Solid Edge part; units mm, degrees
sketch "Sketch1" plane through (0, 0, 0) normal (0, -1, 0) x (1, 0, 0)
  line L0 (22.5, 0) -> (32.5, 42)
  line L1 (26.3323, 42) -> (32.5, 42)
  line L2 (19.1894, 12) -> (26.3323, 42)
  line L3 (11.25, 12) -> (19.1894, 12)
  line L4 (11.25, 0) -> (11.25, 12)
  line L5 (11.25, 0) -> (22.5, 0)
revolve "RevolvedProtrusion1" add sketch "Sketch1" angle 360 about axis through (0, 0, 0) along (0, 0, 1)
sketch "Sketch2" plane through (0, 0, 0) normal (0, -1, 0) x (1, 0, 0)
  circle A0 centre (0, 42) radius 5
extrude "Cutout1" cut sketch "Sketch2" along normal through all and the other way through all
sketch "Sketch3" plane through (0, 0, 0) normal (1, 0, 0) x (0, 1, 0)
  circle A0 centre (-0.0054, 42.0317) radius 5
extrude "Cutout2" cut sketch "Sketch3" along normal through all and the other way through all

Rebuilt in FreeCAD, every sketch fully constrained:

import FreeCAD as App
import Part
import Sketcher
from FreeCAD import Vector


def add_polygon(sketch, points):
    """Adds a closed chain of lines whose ends are joined by coincident constraints."""
    first, n = sketch.GeometryCount, len(points)
    for a, b in zip(points, points[1:] + points[:1]):
        sketch.addGeometry(Part.LineSegment(App.Vector(*a, 0), App.Vector(*b, 0)), False)
    for i in range(n):
        sketch.addConstraint(Sketcher.Constraint("Coincident", first + i, 2, first + (i + 1) % n, 1))

doc = App.newDocument("Part")
body = doc.addObject("PartDesign::Body", "Body")

sketch1 = doc.addObject("Sketcher::SketchObject", "Sketch")
body.addObject(sketch1)
sketch1.AttachmentSupport = (doc.XZ_Plane, [""])
sketch1.MapMode = "FlatFace"
add_polygon(sketch1, [(11, 0), (22, 0), (32, 42), (26, 42), (19, 12), (11, 12)])
sketch1.addConstraint([
    Sketcher.Constraint("Horizontal", 0),
    Sketcher.Constraint("Horizontal", 2),
    Sketcher.Constraint("Horizontal", 4),
    Sketcher.Constraint("Vertical", 5),
    Sketcher.Constraint("PointOnObject", 0, 2, -1),
    Sketcher.Constraint("Parallel", 1, 3),
    Sketcher.Constraint("DistanceY", 5, 2, 5, 1, 12.0),
    Sketcher.Constraint("DistanceY", -1, 1, 1, 2, 42.0),
    Sketcher.Constraint("DistanceX", 0, 2, 1, 2, 10.0),
    Sketcher.Constraint("DistanceX", 0, 1, 0, 2, 11.25),
    Sketcher.Constraint("DistanceX", -1, 1, 0, 2, 22.5),
    Sketcher.Constraint("DistanceX", 2, 2, 2, 1, 6.1677),
])
revolution = doc.addObject("PartDesign::Revolution", "Revolution")
body.addObject(revolution)
revolution.Profile = sketch1
revolution.ReferenceAxis = (sketch1, ["V_Axis"])
revolution.Angle = 360

sketch2 = doc.addObject("Sketcher::SketchObject", "Sketch001")
body.addObject(sketch2)
sketch2.AttachmentSupport = (doc.XZ_Plane, [""])
sketch2.MapMode = "FlatFace"
sketch2.addGeometry(Part.Circle(Vector(0, 42, 0), Vector(0, 0, 1), 5), False)
sketch2.addConstraint([
    Sketcher.Constraint("PointOnObject", 0, 3, -2),
    Sketcher.Constraint("Diameter", 0, 10.0),
    Sketcher.Constraint("DistanceY", -1, 1, 0, 3, 42.0),
])
pocket1 = doc.addObject("PartDesign::Pocket", "Pocket")
body.addObject(pocket1)
pocket1.Profile = sketch2
pocket1.Type = "ThroughAll"
pocket1.Midplane = True

sketch3 = doc.addObject("Sketcher::SketchObject", "Sketch002")
body.addObject(sketch3)
sketch3.AttachmentSupport = (doc.YZ_Plane, [""])
sketch3.MapMode = "FlatFace"
sketch3.addGeometry(Part.Circle(Vector(0, 42, 0), Vector(0, 0, 1), 5), False)
sketch3.addConstraint([
    Sketcher.Constraint("Diameter", 0, 10.0),
    Sketcher.Constraint("DistanceX", 0, 3, -1, 1, 0.0054),
    Sketcher.Constraint("DistanceY", -1, 1, 0, 3, 42.0317),
])
pocket2 = doc.addObject("PartDesign::Pocket", "Pocket001")
body.addObject(pocket2)
pocket2.Profile = sketch3
pocket2.Type = "ThroughAll"
pocket2.Midplane = True

doc.recompute()
